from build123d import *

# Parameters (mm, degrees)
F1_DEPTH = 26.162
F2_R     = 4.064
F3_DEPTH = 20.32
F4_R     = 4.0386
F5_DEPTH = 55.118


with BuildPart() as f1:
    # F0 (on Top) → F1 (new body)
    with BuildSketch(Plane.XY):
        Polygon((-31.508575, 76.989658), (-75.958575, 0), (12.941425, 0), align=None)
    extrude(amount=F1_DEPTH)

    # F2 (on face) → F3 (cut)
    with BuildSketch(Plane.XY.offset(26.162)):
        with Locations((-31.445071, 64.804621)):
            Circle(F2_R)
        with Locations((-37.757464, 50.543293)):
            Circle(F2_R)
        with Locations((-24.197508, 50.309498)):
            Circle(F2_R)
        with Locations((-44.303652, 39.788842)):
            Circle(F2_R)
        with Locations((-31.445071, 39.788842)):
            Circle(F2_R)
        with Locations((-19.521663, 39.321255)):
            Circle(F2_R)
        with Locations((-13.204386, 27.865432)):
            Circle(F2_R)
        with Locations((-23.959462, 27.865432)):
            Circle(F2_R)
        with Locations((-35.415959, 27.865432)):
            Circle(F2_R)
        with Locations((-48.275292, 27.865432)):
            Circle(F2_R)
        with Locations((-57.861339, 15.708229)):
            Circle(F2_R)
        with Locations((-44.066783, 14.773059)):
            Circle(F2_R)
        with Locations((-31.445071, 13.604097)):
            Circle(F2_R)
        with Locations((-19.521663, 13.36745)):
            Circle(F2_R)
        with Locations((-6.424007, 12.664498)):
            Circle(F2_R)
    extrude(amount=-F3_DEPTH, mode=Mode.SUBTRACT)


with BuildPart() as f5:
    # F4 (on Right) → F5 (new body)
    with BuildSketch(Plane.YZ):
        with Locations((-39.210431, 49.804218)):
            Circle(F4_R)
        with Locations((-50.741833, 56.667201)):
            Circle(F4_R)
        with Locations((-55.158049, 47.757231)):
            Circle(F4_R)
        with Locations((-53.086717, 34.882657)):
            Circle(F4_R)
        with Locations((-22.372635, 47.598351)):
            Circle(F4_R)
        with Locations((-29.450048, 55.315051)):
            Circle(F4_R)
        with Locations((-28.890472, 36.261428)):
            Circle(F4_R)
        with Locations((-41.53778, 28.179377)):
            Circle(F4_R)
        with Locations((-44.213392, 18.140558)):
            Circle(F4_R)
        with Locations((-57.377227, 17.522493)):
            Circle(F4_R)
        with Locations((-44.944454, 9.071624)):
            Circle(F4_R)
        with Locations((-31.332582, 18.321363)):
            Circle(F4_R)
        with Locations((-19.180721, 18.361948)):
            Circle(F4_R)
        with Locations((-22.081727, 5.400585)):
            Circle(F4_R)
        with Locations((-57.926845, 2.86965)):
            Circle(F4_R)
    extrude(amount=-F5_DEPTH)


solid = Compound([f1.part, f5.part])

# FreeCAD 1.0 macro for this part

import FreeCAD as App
import Part
import Sketcher
from FreeCAD import Vector
Q = App.Units.Quantity

doc = App.newDocument("Part")
body = doc.addObject("PartDesign::Body", "Body")

# Sketch on XY plane
sketch1 = body.newObject("Sketcher::SketchObject", "Sketch")
sketch1.AttachmentSupport = (doc.getObject("XY_Plane"), [""])
sketch1.MapMode = "FlatFace"
sketch1.addGeometry(Part.LineSegment(Vector(-32, 77, 0), Vector(-76, 0, 0)), False)
sketch1.addGeometry(Part.LineSegment(Vector(-76, 0, 0), Vector(13, 0, 0)), False)
sketch1.addGeometry(Part.LineSegment(Vector(13, 0, 0), Vector(-32, 77, 0)), False)
sketch1.addConstraint(Sketcher.Constraint("Coincident", 0, 2, 1, 1))
sketch1.addConstraint(Sketcher.Constraint("Coincident", 1, 2, 2, 1))
sketch1.addConstraint(Sketcher.Constraint("Coincident", 2, 2, 0, 1))
sketch1.addConstraint(Sketcher.Constraint("Horizontal", 1))
sketch1.addConstraint(Sketcher.Constraint("PointOnObject", 0, 2, -1))
sketch1.addConstraint(Sketcher.Constraint("Equal", 0, 2))
sketch1.addConstraint(Sketcher.Constraint("DistanceX", 1, 1, 1, 2, Q("3.5 in")))
sketch1.addConstraint(Sketcher.Constraint("Angle", 0, Q("-120 deg")))
sketch1.addConstraint(Sketcher.Constraint("DistanceX", 0, 2, -1, 1, Q("75.958575 mm")))
pad1 = body.newObject("PartDesign::Pad", "Pad")
pad1.Profile = sketch1
pad1.Length = Q("1.03 in")

# Sketch on XY plane
sketch2 = body.newObject("Sketcher::SketchObject", "Sketch001")
sketch2.AttachmentSupport = (doc.getObject("XY_Plane"), [""])
sketch2.MapMode = "FlatFace"
sketch2.AttachmentOffset = App.Placement(Vector(0, 0, 1.03 * 25.4), App.Rotation())
sketch2.addGeometry(Part.Circle(Vector(-31.4, 64.8, 0), Vector(0, 0, 1), 4.1), False)
sketch2.addGeometry(Part.Circle(Vector(-37.8, 50.5, 0), Vector(0, 0, 1), 4.1), False)
sketch2.addGeometry(Part.Circle(Vector(-24.2, 50.3, 0), Vector(0, 0, 1), 4.1), False)
sketch2.addGeometry(Part.Circle(Vector(-44.3, 39.8, 0), Vector(0, 0, 1), 4.1), False)
sketch2.addGeometry(Part.Circle(Vector(-31.4, 39.8, 0), Vector(0, 0, 1), 4.1), False)
sketch2.addGeometry(Part.Circle(Vector(-19.5, 39.3, 0), Vector(0, 0, 1), 4.1), False)
sketch2.addGeometry(Part.Circle(Vector(-13.2, 27.9, 0), Vector(0, 0, 1), 4.1), False)
sketch2.addGeometry(Part.Circle(Vector(-24, 27.9, 0), Vector(0, 0, 1), 4.1), False)
sketch2.addGeometry(Part.Circle(Vector(-35.4, 27.9, 0), Vector(0, 0, 1), 4.1), False)
sketch2.addGeometry(Part.Circle(Vector(-48.3, 27.9, 0), Vector(0, 0, 1), 4.1), False)
sketch2.addGeometry(Part.Circle(Vector(-57.9, 15.7, 0), Vector(0, 0, 1), 4.1), False)
sketch2.addGeometry(Part.Circle(Vector(-44.1, 14.8, 0), Vector(0, 0, 1), 4.1), False)
sketch2.addGeometry(Part.Circle(Vector(-31.4, 13.6, 0), Vector(0, 0, 1), 4.1), False)
sketch2.addGeometry(Part.Circle(Vector(-19.5, 13.4, 0), Vector(0, 0, 1), 4.1), False)
sketch2.addGeometry(Part.Circle(Vector(-6.4, 12.7, 0), Vector(0, 0, 1), 4.1), False)
sketch2.addConstraint(Sketcher.Constraint("Equal", 0, 1))
sketch2.addConstraint(Sketcher.Constraint("Equal", 1, 2))
sketch2.addConstraint(Sketcher.Constraint("Equal", 2, 3))
sketch2.addConstraint(Sketcher.Constraint("Equal", 3, 4))
sketch2.addConstraint(Sketcher.Constraint("Equal", 4, 5))
sketch2.addConstraint(Sketcher.Constraint("Equal", 5, 6))
sketch2.addConstraint(Sketcher.Constraint("Equal", 6, 7))
sketch2.addConstraint(Sketcher.Constraint("Equal", 7, 8))
sketch2.addConstraint(Sketcher.Constraint("Equal", 8, 9))
sketch2.addConstraint(Sketcher.Constraint("Equal", 9, 10))
sketch2.addConstraint(Sketcher.Constraint("Equal", 10, 11))
sketch2.addConstraint(Sketcher.Constraint("Equal", 11, 12))
sketch2.addConstraint(Sketcher.Constraint("Equal", 12, 13))
sketch2.addConstraint(Sketcher.Constraint("Equal", 13, 14))
sketch2.addConstraint(Sketcher.Constraint("Horizontal", 3, 3, 4, 3))
sketch2.addConstraint(Sketcher.Constraint("Horizontal", 6, 3, 7, 3))
sketch2.addConstraint(Sketcher.Constraint("Horizontal", 7, 3, 8, 3))
sketch2.addConstraint(Sketcher.Constraint("Horizontal", 8, 3, 9, 3))
sketch2.addConstraint(Sketcher.Constraint("Vertical", 0, 3, 4, 3))
sketch2.addConstraint(Sketcher.Constraint("Vertical", 4, 3, 12, 3))
sketch2.addConstraint(Sketcher.Constraint("Vertical", 5, 3, 13, 3))
sketch2.addConstraint(Sketcher.Constraint("Diameter", 0, Q("0.32 in")))
sketch2.addConstraint(Sketcher.Constraint("DistanceX", 2, 3, 6, 3, Q("0.4328001 in")))
sketch2.addConstraint(Sketcher.Constraint("DistanceX", 1, 3, 5, 3, Q("18.235801 mm")))
sketch2.addConstraint(Sketcher.Constraint("DistanceX", 7, 3, 5, 3, Q("4.437799 mm")))
sketch2.addConstraint(Sketcher.Constraint("DistanceY", 14, 3, 12, 3, Q("0.939599 mm")))
sketch2.addConstraint(Sketcher.Constraint("DistanceX", 0, 3, -1, 1, Q("31.445071 mm")))
sketch2.addConstraint(Sketcher.Constraint("DistanceY", -1, 1, 0, 3, Q("64.804621 mm")))
sketch2.addConstraint(Sketcher.Constraint("DistanceY", -1, 1, 6, 3, Q("27.865432 mm")))
sketch2.addConstraint(Sketcher.Constraint("DistanceX", 7, 3, -1, 1, Q("23.959462 mm")))
sketch2.addConstraint(Sketcher.Constraint("DistanceX", 8, 3, -1, 1, Q("35.415959 mm")))
sketch2.addConstraint(Sketcher.Constraint("DistanceX", 10, 3, -1, 1, Q("57.861339 mm")))
sketch2.addConstraint(Sketcher.Constraint("DistanceY", -1, 1, 10, 3, Q("15.708229 mm")))
sketch2.addConstraint(Sketcher.Constraint("DistanceY", -1, 1, 11, 3, Q("14.773059 mm")))
sketch2.addConstraint(Sketcher.Constraint("DistanceY", -1, 1, 13, 3, Q("13.36745 mm")))
sketch2.addConstraint(Sketcher.Constraint("DistanceX", 3, 3, 1, 3, Q("6.546188 mm")))
sketch2.addConstraint(Sketcher.Constraint("DistanceY", 3, 3, 1, 3, Q("10.754451 mm")))
sketch2.addConstraint(Sketcher.Constraint("DistanceY", 3, 3, 0, 3, Q("25.015779 mm")))
sketch2.addConstraint(Sketcher.Constraint("DistanceX", 9, 3, 3, 3, Q("3.97164 mm")))
sketch2.addConstraint(Sketcher.Constraint("DistanceX", 9, 3, 11, 3, Q("4.208509 mm")))
sketch2.addConstraint(Sketcher.Constraint("DistanceY", 14, 3, 13, 3, Q("0.702952 mm")))
sketch2.addConstraint(Sketcher.Constraint("DistanceX", 6, 3, 14, 3, Q("6.780379 mm")))
sketch2.addConstraint(Sketcher.Constraint("DistanceX", 2, 3, -1, 1, Q("24.197508 mm")))
sketch2.addConstraint(Sketcher.Constraint("DistanceY", -1, 1, 2, 3, Q("50.309498 mm")))
sketch2.addConstraint(Sketcher.Constraint("DistanceY", -1, 1, 5, 3, Q("39.321255 mm")))
pocket1 = body.newObject("PartDesign::Pocket", "Pocket")
pocket1.Profile = sketch2
pocket1.Length = Q("0.8 in")
body2 = doc.addObject("PartDesign::Body", "Body001")
body2.AllowCompound = True

# Sketch on YZ plane
sketch3 = body2.newObject("Sketcher::SketchObject", "Sketch002")
sketch3.AttachmentSupport = (doc.getObject("YZ_Plane001"), [""])
sketch3.MapMode = "FlatFace"
sketch3.addGeometry(Part.Circle(Vector(-39.2, 49.8, 0), Vector(0, 0, 1), 4), False)
sketch3.addGeometry(Part.Circle(Vector(-50.7, 56.7, 0), Vector(0, 0, 1), 4), False)
sketch3.addGeometry(Part.Circle(Vector(-55.2, 47.8, 0), Vector(0, 0, 1), 4), False)
sketch3.addGeometry(Part.Circle(Vector(-53.1, 34.9, 0), Vector(0, 0, 1), 4), False)
sketch3.addGeometry(Part.Circle(Vector(-22.4, 47.6, 0), Vector(0, 0, 1), 4), False)
sketch3.addGeometry(Part.Circle(Vector(-29.5, 55.3, 0), Vector(0, 0, 1), 4), False)
sketch3.addGeometry(Part.Circle(Vector(-28.9, 36.3, 0), Vector(0, 0, 1), 4), False)
sketch3.addGeometry(Part.Circle(Vector(-41.5, 28.2, 0), Vector(0, 0, 1), 4), False)
sketch3.addGeometry(Part.Circle(Vector(-44.2, 18.1, 0), Vector(0, 0, 1), 4), False)
sketch3.addGeometry(Part.Circle(Vector(-57.4, 17.5, 0), Vector(0, 0, 1), 4), False)
sketch3.addGeometry(Part.Circle(Vector(-44.9, 9.1, 0), Vector(0, 0, 1), 4), False)
sketch3.addGeometry(Part.Circle(Vector(-31.3, 18.3, 0), Vector(0, 0, 1), 4), False)
sketch3.addGeometry(Part.Circle(Vector(-19.2, 18.4, 0), Vector(0, 0, 1), 4), False)
sketch3.addGeometry(Part.Circle(Vector(-22.1, 5.4, 0), Vector(0, 0, 1), 4), False)
sketch3.addGeometry(Part.Circle(Vector(-57.9, 2.9, 0), Vector(0, 0, 1), 4), False)
sketch3.addConstraint(Sketcher.Constraint("Equal", 0, 1))
sketch3.addConstraint(Sketcher.Constraint("Equal", 1, 2))
sketch3.addConstraint(Sketcher.Constraint("Equal", 2, 3))
sketch3.addConstraint(Sketcher.Constraint("Equal", 3, 4))
sketch3.addConstraint(Sketcher.Constraint("Equal", 4, 5))
sketch3.addConstraint(Sketcher.Constraint("Equal", 5, 6))
sketch3.addConstraint(Sketcher.Constraint("Equal", 6, 7))
sketch3.addConstraint(Sketcher.Constraint("Equal", 7, 8))
sketch3.addConstraint(Sketcher.Constraint("Equal", 8, 9))
sketch3.addConstraint(Sketcher.Constraint("Equal", 9, 10))
sketch3.addConstraint(Sketcher.Constraint("Equal", 10, 11))
sketch3.addConstraint(Sketcher.Constraint("Equal", 11, 12))
sketch3.addConstraint(Sketcher.Constraint("Equal", 12, 13))
sketch3.addConstraint(Sketcher.Constraint("Equal", 13, 14))
sketch3.addConstraint(Sketcher.Constraint("Diameter", 0, Q("0.318 in")))
sketch3.addConstraint(Sketcher.Constraint("DistanceY", -1, 1, 1, 3, Q("56.667201 mm")))
sketch3.addConstraint(Sketcher.Constraint("DistanceX", 1, 3, 4, 3, Q("28.369198 mm")))
sketch3.addConstraint(Sketcher.Constraint("DistanceY", 4, 3, 5, 3, Q("7.7167 mm")))
sketch3.addConstraint(Sketcher.Constraint("DistanceX", 2, 3, 5, 3, Q("25.708001 mm")))
sketch3.addConstraint(Sketcher.Constraint("DistanceY", 8, 3, 3, 3, Q("16.742099 mm")))
sketch3.addConstraint(Sketcher.Constraint("DistanceX", 0, 3, -1, 1, Q("39.210431 mm")))
sketch3.addConstraint(Sketcher.Constraint("DistanceX", 2, 3, -1, 1, Q("55.158049 mm")))
sketch3.addConstraint(Sketcher.Constraint("DistanceY", -1, 1, 2, 3, Q("47.757231 mm")))
sketch3.addConstraint(Sketcher.Constraint("DistanceY", -1, 1, 4, 3, Q("47.598351 mm")))
sketch3.addConstraint(Sketcher.Constraint("DistanceX", 6, 3, -1, 1, Q("28.890472 mm")))
sketch3.addConstraint(Sketcher.Constraint("DistanceY", -1, 1, 6, 3, Q("36.261428 mm")))
sketch3.addConstraint(Sketcher.Constraint("DistanceX", 7, 3, -1, 1, Q("41.53778 mm")))
sketch3.addConstraint(Sketcher.Constraint("DistanceX", 11, 3, -1, 1, Q("31.332582 mm")))
sketch3.addConstraint(Sketcher.Constraint("DistanceX", 12, 3, -1, 1, Q("19.180721 mm")))
sketch3.addConstraint(Sketcher.Constraint("DistanceY", -1, 1, 12, 3, Q("18.361948 mm")))
sketch3.addConstraint(Sketcher.Constraint("DistanceY", -1, 1, 14, 3, Q("2.86965 mm")))
sketch3.addConstraint(Sketcher.Constraint("DistanceX", 2, 3, 3, 3, Q("2.071332 mm")))
sketch3.addConstraint(Sketcher.Constraint("DistanceY", 3, 3, 0, 3, Q("14.921561 mm")))
sketch3.addConstraint(Sketcher.Constraint("DistanceY", 6, 3, 0, 3, Q("13.54279 mm")))
sketch3.addConstraint(Sketcher.Constraint("DistanceY", 7, 3, 3, 3, Q("6.70328 mm")))
sketch3.addConstraint(Sketcher.Constraint("DistanceX", 8, 3, 6, 3, Q("15.32292 mm")))
sketch3.addConstraint(Sketcher.Constraint("DistanceX", 9, 3, 3, 3, Q("4.29051 mm")))
sketch3.addConstraint(Sketcher.Constraint("DistanceY", 10, 3, 9, 3, Q("8.450869 mm")))
sketch3.addConstraint(Sketcher.Constraint("DistanceY", 10, 3, 11, 3, Q("9.249739 mm")))
sketch3.addConstraint(Sketcher.Constraint("DistanceY", 13, 3, 11, 3, Q("12.920778 mm")))
sketch3.addConstraint(Sketcher.Constraint("DistanceY", 13, 3, 7, 3, Q("22.778792 mm")))
sketch3.addConstraint(Sketcher.Constraint("DistanceX", 14, 3, 10, 3, Q("12.982391 mm")))
sketch3.addConstraint(Sketcher.Constraint("DistanceX", 14, 3, 9, 3, Q("0.549618 mm")))
sketch3.addConstraint(Sketcher.Constraint("DistanceX", 1, 3, -1, 1, Q("50.741833 mm")))
sketch3.addConstraint(Sketcher.Constraint("DistanceX", 13, 3, -1, 1, Q("22.081727 mm")))
pad2 = body2.newObject("PartDesign::Pad", "Pad001")
pad2.Profile = sketch3
pad2.Length = Q("2.17 in")
pad2.Reversed = True

doc.recompute()
